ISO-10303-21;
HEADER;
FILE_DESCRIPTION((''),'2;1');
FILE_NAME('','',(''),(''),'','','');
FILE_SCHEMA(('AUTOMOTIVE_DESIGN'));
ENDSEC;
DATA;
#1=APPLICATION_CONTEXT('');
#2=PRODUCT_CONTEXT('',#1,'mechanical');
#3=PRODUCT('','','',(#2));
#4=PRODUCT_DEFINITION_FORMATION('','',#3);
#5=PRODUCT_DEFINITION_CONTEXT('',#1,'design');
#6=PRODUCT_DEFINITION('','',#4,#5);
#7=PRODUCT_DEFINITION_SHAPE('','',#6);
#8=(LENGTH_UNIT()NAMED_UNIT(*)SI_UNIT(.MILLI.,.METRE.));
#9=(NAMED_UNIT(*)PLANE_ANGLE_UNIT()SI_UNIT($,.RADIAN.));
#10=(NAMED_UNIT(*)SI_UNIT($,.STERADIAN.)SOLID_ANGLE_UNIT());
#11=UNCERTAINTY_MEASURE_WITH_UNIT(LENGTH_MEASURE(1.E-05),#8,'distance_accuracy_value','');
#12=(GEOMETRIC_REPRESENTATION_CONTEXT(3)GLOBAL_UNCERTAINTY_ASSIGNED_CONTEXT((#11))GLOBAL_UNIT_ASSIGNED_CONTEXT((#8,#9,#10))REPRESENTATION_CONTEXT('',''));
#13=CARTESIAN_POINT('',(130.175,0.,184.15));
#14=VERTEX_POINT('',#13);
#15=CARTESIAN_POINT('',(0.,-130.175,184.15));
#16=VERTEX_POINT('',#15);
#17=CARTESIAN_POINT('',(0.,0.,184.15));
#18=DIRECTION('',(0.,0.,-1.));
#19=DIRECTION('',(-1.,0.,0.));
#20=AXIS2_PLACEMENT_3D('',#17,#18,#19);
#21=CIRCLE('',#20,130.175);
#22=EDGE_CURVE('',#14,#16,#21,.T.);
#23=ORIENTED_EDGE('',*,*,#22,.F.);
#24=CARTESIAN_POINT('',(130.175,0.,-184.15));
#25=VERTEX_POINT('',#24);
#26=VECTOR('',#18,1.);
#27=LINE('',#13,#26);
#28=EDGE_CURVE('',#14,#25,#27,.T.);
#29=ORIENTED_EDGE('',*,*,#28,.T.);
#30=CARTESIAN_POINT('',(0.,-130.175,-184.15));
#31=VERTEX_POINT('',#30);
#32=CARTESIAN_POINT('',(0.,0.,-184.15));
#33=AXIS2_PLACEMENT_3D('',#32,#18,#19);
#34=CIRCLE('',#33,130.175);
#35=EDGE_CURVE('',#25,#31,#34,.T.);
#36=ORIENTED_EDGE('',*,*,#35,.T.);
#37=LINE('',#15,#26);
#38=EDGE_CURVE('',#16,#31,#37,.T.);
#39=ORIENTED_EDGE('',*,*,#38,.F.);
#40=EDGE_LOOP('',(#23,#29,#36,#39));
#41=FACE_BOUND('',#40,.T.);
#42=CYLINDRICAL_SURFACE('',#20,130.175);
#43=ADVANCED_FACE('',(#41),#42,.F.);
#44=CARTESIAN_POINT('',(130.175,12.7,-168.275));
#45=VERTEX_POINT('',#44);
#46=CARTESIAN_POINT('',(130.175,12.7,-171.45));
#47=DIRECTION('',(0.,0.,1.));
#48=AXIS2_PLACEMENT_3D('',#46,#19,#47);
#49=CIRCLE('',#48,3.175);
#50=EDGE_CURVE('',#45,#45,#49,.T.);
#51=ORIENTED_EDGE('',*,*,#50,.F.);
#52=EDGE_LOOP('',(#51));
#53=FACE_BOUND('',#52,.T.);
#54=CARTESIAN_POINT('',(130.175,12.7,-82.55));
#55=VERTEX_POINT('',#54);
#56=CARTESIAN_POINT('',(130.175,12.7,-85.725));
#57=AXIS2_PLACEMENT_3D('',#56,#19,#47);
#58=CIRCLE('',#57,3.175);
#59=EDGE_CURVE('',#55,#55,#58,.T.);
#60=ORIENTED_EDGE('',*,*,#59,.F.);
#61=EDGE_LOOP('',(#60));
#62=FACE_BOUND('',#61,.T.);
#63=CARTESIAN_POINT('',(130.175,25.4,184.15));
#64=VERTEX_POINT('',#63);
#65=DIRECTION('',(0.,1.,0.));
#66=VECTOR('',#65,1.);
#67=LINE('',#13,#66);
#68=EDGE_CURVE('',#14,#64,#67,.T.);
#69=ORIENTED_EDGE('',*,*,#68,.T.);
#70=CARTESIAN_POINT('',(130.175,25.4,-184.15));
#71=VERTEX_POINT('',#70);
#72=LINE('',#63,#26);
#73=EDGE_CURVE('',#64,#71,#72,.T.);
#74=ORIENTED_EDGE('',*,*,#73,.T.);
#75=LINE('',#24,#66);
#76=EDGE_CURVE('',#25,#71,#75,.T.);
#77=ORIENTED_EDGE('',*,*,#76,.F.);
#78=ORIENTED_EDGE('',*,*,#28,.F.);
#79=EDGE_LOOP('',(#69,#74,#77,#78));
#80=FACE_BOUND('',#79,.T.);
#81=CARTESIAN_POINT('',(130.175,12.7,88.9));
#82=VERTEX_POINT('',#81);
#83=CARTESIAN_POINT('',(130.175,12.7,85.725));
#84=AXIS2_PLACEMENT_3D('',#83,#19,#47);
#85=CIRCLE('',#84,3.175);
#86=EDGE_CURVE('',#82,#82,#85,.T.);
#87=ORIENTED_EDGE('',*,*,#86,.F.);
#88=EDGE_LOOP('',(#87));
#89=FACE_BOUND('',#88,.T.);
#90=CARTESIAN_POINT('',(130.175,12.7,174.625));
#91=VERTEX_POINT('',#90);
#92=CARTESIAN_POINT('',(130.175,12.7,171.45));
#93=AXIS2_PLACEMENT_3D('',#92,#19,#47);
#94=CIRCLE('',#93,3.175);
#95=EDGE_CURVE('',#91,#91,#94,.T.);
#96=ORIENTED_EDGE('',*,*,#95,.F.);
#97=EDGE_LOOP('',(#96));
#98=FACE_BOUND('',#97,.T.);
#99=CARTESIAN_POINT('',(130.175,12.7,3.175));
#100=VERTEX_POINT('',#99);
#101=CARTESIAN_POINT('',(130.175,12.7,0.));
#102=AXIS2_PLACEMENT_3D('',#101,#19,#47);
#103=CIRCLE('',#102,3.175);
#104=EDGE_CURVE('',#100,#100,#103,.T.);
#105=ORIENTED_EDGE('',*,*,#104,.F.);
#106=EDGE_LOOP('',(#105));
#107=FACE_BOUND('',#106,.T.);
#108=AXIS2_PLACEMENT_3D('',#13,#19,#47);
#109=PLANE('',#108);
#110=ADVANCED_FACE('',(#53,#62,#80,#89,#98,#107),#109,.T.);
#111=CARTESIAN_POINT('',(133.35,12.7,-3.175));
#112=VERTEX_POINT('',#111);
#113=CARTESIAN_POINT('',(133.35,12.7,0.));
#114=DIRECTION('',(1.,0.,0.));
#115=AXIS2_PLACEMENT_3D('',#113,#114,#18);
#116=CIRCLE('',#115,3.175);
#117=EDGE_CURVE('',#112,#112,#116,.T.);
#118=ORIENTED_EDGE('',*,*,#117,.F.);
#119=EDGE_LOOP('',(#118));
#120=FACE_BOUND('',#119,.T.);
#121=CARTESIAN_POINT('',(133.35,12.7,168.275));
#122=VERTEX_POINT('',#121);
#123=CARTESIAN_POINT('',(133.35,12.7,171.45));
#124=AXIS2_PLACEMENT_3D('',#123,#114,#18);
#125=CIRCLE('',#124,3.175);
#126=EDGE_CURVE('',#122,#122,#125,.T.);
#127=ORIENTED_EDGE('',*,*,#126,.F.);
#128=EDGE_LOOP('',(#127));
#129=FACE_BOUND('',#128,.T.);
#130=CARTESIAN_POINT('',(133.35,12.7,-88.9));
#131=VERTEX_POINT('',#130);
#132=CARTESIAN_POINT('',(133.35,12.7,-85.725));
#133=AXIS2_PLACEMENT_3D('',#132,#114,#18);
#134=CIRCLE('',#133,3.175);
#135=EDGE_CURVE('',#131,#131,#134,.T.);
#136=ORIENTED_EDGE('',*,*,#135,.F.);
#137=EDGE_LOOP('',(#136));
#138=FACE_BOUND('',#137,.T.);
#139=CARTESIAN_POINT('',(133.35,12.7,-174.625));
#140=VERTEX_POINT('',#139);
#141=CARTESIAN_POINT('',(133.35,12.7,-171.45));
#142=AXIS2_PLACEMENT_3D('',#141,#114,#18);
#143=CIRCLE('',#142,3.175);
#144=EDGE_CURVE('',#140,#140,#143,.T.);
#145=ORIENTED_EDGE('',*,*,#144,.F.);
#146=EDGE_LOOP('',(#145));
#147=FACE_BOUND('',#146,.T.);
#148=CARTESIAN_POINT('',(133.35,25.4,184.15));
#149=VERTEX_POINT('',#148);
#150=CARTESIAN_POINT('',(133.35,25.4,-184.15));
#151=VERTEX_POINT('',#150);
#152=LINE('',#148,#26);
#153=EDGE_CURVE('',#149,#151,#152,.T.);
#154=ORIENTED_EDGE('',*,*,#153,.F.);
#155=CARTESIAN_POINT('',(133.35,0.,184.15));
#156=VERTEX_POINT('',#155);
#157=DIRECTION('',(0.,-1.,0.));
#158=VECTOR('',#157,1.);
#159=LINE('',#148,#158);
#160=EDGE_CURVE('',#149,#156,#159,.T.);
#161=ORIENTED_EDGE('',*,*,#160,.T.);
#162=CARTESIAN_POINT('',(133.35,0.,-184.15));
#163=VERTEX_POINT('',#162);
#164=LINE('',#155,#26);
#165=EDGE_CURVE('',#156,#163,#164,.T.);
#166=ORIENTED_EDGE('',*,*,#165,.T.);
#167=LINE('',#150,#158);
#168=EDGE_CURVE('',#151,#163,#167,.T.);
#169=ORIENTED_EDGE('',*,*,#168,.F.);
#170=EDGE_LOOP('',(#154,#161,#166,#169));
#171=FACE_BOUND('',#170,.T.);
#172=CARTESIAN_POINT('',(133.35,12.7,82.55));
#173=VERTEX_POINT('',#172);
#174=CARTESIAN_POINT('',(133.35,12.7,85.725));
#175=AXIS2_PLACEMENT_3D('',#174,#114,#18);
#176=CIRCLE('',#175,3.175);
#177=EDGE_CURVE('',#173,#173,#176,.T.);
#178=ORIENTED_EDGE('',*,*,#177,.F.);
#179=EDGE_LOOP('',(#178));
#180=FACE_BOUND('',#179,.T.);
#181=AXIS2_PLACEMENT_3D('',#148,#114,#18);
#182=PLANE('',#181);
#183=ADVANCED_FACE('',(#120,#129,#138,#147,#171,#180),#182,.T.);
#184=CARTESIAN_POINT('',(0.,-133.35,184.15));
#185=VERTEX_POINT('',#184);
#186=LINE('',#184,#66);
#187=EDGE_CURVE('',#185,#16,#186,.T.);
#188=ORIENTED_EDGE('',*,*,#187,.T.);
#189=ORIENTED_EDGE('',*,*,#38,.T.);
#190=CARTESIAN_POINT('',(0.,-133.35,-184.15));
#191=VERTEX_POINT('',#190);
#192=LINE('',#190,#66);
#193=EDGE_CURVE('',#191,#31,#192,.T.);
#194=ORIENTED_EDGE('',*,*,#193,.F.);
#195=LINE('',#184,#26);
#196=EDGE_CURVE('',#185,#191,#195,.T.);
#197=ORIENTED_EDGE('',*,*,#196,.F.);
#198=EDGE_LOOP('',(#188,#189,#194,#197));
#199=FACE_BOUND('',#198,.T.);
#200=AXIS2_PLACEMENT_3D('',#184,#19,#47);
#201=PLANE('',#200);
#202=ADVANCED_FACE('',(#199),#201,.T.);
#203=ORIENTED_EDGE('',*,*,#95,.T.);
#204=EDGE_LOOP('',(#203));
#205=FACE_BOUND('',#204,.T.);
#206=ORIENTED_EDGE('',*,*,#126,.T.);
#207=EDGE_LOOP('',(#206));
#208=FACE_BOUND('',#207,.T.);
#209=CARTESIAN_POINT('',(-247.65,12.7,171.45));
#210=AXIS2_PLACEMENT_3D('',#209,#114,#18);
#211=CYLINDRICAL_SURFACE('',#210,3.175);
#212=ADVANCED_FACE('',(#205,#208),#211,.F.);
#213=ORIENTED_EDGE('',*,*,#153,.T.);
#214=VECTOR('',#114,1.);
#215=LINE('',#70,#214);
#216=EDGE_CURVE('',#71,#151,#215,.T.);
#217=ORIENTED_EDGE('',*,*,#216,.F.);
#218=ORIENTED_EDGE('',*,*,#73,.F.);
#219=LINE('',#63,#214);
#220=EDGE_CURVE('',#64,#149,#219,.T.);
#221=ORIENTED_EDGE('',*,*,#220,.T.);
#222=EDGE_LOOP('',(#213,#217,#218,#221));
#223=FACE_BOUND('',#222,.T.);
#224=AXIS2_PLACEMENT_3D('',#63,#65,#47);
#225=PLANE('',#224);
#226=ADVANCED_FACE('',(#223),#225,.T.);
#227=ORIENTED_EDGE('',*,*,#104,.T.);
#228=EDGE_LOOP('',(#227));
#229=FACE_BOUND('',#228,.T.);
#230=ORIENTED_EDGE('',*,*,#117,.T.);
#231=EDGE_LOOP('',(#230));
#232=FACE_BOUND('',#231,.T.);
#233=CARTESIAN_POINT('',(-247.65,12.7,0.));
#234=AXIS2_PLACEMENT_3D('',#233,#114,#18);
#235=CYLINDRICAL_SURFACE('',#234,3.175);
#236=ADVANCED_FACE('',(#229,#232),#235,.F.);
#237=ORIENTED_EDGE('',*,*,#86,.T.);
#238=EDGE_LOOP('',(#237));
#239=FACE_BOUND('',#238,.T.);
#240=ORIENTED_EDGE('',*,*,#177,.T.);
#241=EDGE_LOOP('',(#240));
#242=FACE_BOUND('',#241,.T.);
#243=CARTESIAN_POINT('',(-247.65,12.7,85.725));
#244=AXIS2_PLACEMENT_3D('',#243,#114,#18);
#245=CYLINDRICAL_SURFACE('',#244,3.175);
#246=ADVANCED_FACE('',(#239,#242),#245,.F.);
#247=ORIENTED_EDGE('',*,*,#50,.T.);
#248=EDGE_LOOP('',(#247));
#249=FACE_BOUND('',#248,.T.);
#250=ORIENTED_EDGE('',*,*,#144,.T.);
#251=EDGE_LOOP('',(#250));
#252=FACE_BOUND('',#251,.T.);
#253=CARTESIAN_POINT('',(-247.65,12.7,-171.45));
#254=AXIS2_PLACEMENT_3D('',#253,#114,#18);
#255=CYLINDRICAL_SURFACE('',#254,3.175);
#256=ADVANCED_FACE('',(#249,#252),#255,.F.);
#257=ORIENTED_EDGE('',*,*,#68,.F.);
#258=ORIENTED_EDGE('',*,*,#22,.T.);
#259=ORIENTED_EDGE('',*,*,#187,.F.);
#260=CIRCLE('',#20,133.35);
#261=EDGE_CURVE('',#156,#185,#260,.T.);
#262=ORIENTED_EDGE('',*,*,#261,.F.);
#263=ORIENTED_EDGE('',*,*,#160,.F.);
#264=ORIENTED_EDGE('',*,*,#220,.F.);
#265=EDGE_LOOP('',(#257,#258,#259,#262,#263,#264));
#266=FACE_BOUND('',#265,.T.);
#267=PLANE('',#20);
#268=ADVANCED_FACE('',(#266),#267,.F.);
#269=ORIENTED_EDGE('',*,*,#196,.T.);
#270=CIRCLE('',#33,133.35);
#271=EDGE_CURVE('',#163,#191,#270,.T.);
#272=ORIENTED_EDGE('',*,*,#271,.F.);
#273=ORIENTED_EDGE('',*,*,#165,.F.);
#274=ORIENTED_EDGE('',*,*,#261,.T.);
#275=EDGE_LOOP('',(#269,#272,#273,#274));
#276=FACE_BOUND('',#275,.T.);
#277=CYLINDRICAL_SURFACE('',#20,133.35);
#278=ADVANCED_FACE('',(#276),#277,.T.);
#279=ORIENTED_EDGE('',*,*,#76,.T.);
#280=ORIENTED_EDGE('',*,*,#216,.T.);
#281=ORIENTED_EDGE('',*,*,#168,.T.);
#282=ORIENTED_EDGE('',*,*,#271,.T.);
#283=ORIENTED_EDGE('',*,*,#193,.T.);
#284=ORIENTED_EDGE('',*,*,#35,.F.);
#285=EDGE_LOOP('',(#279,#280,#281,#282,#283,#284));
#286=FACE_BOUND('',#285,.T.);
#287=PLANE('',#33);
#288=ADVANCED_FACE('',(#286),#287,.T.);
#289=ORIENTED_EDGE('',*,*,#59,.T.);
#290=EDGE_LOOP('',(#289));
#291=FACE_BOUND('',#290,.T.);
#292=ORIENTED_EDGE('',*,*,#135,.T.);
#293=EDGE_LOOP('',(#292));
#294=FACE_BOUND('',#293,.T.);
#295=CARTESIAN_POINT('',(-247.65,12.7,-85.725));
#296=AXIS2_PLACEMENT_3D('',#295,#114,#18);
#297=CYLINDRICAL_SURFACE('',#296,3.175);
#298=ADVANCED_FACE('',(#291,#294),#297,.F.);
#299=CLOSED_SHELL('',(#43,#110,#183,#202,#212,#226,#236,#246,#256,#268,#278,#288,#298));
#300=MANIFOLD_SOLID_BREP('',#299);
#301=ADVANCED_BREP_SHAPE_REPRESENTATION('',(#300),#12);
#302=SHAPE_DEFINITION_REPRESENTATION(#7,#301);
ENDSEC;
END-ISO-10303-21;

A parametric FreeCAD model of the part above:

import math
import FreeCAD as App
import Part
import Sketcher
from FreeCAD import Vector
Q = App.Units.Quantity

doc = App.newDocument("Part")
body = doc.addObject("PartDesign::Body", "Body")

sketch1 = body.newObject("Sketcher::SketchObject", "Sketch")
sketch1.AttachmentSupport = (doc.getObject("XY_Plane"), [""])
sketch1.MapMode = "FlatFace"
sketch1.addGeometry([
    Part.LineSegment(Vector(0, -130.2, 0), Vector(0, -133.3, 0)),
    Part.ArcOfCircle(Part.Circle(Vector(0, 0, 0), Vector(0, 0, 1), 133.4), math.radians(-90), math.radians(0)),
    Part.LineSegment(Vector(133.3, 0, 0), Vector(133.3, 25.4, 0)),
    Part.LineSegment(Vector(133.3, 25.4, 0), Vector(130.2, 25.4, 0)),
    Part.LineSegment(Vector(130.2, 25.4, 0), Vector(130.2, 0, 0)),
    Part.ArcOfCircle(Part.Circle(Vector(0, 0, 0), Vector(0, 0, 1), 130.2), math.radians(-90), math.radians(0)),
], False)
sketch1.addConstraint([
    Sketcher.Constraint("Coincident", 0, 2, 1, 1),
    Sketcher.Constraint("Tangent", 1, 2, 2, 1),
    Sketcher.Constraint("Coincident", 2, 2, 3, 1),
    Sketcher.Constraint("Coincident", 3, 2, 4, 1),
    Sketcher.Constraint("Tangent", 4, 2, 5, 2),
    Sketcher.Constraint("Coincident", 5, 1, 0, 1),
    Sketcher.Constraint("Vertical", 0),
    Sketcher.Constraint("Vertical", 2),
    Sketcher.Constraint("Horizontal", 3),
    Sketcher.Constraint("Vertical", 4),
    Sketcher.Constraint("Coincident", 1, 3, -1, 1),
    Sketcher.Constraint("Coincident", 5, 3, -1, 1),
    Sketcher.Constraint("PointOnObject", 0, 2, -2),
    Sketcher.Constraint("DistanceY", 2, 1, 2, 2, Q("1 in")),
    Sketcher.Constraint("Radius", 1, Q("5.25 in")),
    Sketcher.Constraint("Radius", 5, Q("5.125 in")),
])
pad1 = body.newObject("PartDesign::Pad", "Pad")
pad1.Profile = sketch1
pad1.Length = Q("14.5 in")
pad1.Midplane = True

sketch2 = body.newObject("Sketcher::SketchObject", "Sketch001")
sketch2.AttachmentSupport = (doc.getObject("YZ_Plane"), [""])
sketch2.MapMode = "FlatFace"
sketch2.AttachmentOffset = App.Placement(Vector(0, 0, 5.25 * 25.4), App.Rotation())
sketch2.addGeometry([
    Part.Circle(Vector(12.7, 0, 0), Vector(0, 0, 1), 3.2),
    Part.Circle(Vector(12.7, -85.7, 0), Vector(0, 0, 1), 3.2),
    Part.Circle(Vector(12.7, 85.7, 0), Vector(0, 0, 1), 3.2),
    Part.Circle(Vector(12.7, 171.4, 0), Vector(0, 0, 1), 3.2),
    Part.Circle(Vector(12.7, -171.4, 0), Vector(0, 0, 1), 3.2),
], False)
sketch2.addConstraint([
    Sketcher.Constraint("Equal", 0, 1),
    Sketcher.Constraint("Equal", 1, 2),
    Sketcher.Constraint("Equal", 2, 3),
    Sketcher.Constraint("Equal", 3, 4),
    Sketcher.Constraint("Symmetric", 1, 3, 2, 3, -1),
    Sketcher.Constraint("Symmetric", 3, 3, 4, 3, -1),
    Sketcher.Constraint("PointOnObject", 0, 3, -1),
    Sketcher.Constraint("Vertical", 0, 3, 1, 3),
    Sketcher.Constraint("Vertical", 2, 3, 3, 3),
    Sketcher.Constraint("Diameter", 0, Q("0.25 in")),
    Sketcher.Constraint("DistanceX", -1, 1, 0, 3, Q("0.5 in")),
    Sketcher.Constraint("DistanceY", 4, 3, 3, 3, Q("13.5 in")),
    Sketcher.Constraint("DistanceY", 1, 3, 2, 3, Q("6.75 in")),
])
pocket1 = body.newObject("PartDesign::Pocket", "Pocket")
pocket1.Profile = sketch2
pocket1.Length = Q("15 in")

doc.recompute()
